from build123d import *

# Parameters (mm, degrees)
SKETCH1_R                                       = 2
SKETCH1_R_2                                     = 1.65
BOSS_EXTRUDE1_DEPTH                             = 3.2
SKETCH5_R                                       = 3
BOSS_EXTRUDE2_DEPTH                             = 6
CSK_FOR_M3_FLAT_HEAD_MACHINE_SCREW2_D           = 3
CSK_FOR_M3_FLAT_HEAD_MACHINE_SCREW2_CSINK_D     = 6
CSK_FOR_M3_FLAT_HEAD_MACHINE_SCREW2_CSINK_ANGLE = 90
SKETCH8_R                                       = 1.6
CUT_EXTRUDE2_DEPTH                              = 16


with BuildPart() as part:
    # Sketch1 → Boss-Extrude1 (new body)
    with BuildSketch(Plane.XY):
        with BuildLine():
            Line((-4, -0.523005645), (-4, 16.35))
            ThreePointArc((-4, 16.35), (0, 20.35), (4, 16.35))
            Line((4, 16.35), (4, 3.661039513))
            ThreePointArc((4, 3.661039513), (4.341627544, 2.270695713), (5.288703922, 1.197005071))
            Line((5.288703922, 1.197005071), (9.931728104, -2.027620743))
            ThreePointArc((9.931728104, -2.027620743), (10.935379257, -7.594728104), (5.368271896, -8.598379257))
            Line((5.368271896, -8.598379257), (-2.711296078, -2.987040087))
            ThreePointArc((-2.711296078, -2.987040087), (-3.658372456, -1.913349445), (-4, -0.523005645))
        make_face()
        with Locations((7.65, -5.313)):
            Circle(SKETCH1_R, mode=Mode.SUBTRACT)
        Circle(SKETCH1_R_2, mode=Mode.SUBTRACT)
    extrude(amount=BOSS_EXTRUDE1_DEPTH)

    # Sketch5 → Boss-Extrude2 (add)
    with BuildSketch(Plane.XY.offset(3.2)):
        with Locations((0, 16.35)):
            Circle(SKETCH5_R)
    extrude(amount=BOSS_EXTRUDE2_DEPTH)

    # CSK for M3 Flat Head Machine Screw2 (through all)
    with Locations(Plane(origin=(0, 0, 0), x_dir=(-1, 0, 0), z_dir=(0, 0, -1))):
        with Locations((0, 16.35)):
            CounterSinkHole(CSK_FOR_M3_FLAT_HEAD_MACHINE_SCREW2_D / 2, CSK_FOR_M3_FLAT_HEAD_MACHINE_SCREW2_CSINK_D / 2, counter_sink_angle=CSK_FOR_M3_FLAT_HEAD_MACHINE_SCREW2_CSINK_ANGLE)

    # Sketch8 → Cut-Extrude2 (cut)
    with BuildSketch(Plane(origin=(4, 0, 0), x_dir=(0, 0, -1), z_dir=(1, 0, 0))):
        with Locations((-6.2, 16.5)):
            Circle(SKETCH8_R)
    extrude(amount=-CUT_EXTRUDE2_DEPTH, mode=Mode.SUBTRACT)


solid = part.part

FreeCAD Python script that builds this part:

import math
import FreeCAD as App
import Part
import Sketcher

V = App.Vector
Q = App.Units.Quantity

doc = App.newDocument("Part")
body = doc.addObject("PartDesign::Body", "Body")

sketch1 = body.newObject("Sketcher::SketchObject", "Sketch")
sketch1.AttachmentSupport = (doc.getObject("XY_Plane"), [""])
sketch1.MapMode = "FlatFace"
sketch1.addGeometry([
    Part.LineSegment(V(-4, 16.4, 0), V(-4, -0.5, 0)),
    Part.ArcOfCircle(Part.Circle(V(-1, -0.5, 0), V(0, 0, 1), 3), math.radians(-180), math.radians(-125)),
    Part.LineSegment(V(-2.7, -3, 0), V(5.4, -8.6, 0)),
    Part.ArcOfCircle(Part.Circle(V(7.7, -5.3, 0), V(0, 0, 1), 4), math.radians(-125), math.radians(55)),
    Part.LineSegment(V(9.9, -2, 0), V(5.3, 1.2, 0)),
    Part.ArcOfCircle(Part.Circle(V(7, 3.7, 0), V(0, 0, 1), 3), math.radians(-180), math.radians(-125)),
    Part.LineSegment(V(4, 3.7, 0), V(4, 16.4, 0)),
    Part.ArcOfCircle(Part.Circle(V(0, 16.4, 0), V(0, 0, 1), 4), math.radians(0), math.radians(180)),
    Part.Circle(V(7.7, -5.3, 0), V(0, 0, 1), 2),
    Part.Circle(V(0, 0, 0), V(0, 0, 1), 1.6),
], False)
sketch1.addConstraint([
    Sketcher.Constraint("Tangent", 0, 2, 1, 1),
    Sketcher.Constraint("Tangent", 1, 2, 2, 1),
    Sketcher.Constraint("Tangent", 2, 2, 3, 1),
    Sketcher.Constraint("Tangent", 3, 2, 4, 1),
    Sketcher.Constraint("Tangent", 4, 2, 5, 2),
    Sketcher.Constraint("Tangent", 5, 1, 6, 1),
    Sketcher.Constraint("Tangent", 6, 2, 7, 1),
    Sketcher.Constraint("Tangent", 7, 2, 0, 1),
    Sketcher.Constraint("Vertical", 0),
    Sketcher.Constraint("Vertical", 6),
    Sketcher.Constraint("Coincident", 9, 3, -1, 1),
    Sketcher.Constraint("Coincident", 8, 3, 3, 3),
    Sketcher.Constraint("Equal", 1, 5),
    Sketcher.Constraint("Equal", 3, 7),
    Sketcher.Constraint("PointOnObject", 7, 3, -2),
    Sketcher.Constraint("Parallel", 2, 4),
    Sketcher.Constraint("Diameter", 8, Q("4 mm")),
    Sketcher.Constraint("Radius", 1, Q("3 mm")),
    Sketcher.Constraint("Radius", 3, Q("4 mm")),
    Sketcher.Constraint("Diameter", 9, Q("3.3 mm")),
    Sketcher.Constraint("DistanceX", -1, 1, 3, 3, Q("7.65 mm")),
    Sketcher.Constraint("DistanceY", -1, 1, 7, 3, Q("16.35 mm")),
    Sketcher.Constraint("Distance", 2, Q("9.836999 mm")),
    Sketcher.Constraint("DistanceY", 3, 3, -1, 1, Q("5.313 mm")),
])
pad1 = body.newObject("PartDesign::Pad", "Pad")
pad1.Profile = sketch1
pad1.Length = 3.2

sketch2 = body.newObject("Sketcher::SketchObject", "Sketch001")
sketch2.AttachmentSupport = (doc.getObject("XY_Plane"), [""])
sketch2.MapMode = "FlatFace"
sketch2.AttachmentOffset = App.Placement(V(0, 0, 3.2), App.Rotation())
sketch2.addGeometry(Part.Circle(V(0, 16.4, 0), V(0, 0, 1), 3), False)
sketch2.addConstraint([
    Sketcher.Constraint("PointOnObject", 0, 3, -2),
    Sketcher.Constraint("Diameter", 0, Q("6 mm")),
    Sketcher.Constraint("DistanceY", -1, 1, 0, 3, Q("16.35 mm")),
])
pad2 = body.newObject("PartDesign::Pad", "Pad001")
pad2.Profile = sketch2
pad2.Length = 6

sketch3 = body.newObject("Sketcher::SketchObject", "Sketch002")
sketch3.AttachmentSupport = (doc.getObject("XY_Plane"), [""])
sketch3.MapMode = "FlatFace"
sketch3.addGeometry(Part.Circle(V(0, 16.4, 0), V(0, 0, 1), 1.5), False)
sketch3.addConstraint([
    Sketcher.Constraint("PointOnObject", 0, 3, -2),
    Sketcher.Constraint("Diameter", 0, Q("3 mm")),
    Sketcher.Constraint("DistanceY", -1, 1, 0, 3, Q("16.35 mm")),
])
doc.recompute()
hole = body.newObject("PartDesign::Hole", "Hole")
hole.Profile = sketch3
hole.ThreadType = "None"
hole.Diameter = 3
hole.DepthType = "ThroughAll"
hole.HoleCutType = "Countersink"
hole.HoleCutDiameter = 6
hole.HoleCutCountersinkAngle = 90
hole.Reversed = True

sketch4 = body.newObject("Sketcher::SketchObject", "Sketch003")
sketch4.AttachmentSupport = (doc.getObject("YZ_Plane"), [""])
sketch4.MapMode = "FlatFace"
sketch4.AttachmentOffset = App.Placement(V(0, 0, 4), App.Rotation())
sketch4.addGeometry(Part.Circle(V(16.5, 6.2, 0), V(0, 0, 1), 1.6), False)
sketch4.addConstraint([
    Sketcher.Constraint("Diameter", 0, Q("3.2 mm")),
    Sketcher.Constraint("DistanceX", -1, 1, 0, 3, Q("16.5 mm")),
    Sketcher.Constraint("DistanceY", -1, 1, 0, 3, Q("6.2 mm")),
])
pocket1 = body.newObject("PartDesign::Pocket", "Pocket")
pocket1.Profile = sketch4
pocket1.Length = 16

doc.recompute()
